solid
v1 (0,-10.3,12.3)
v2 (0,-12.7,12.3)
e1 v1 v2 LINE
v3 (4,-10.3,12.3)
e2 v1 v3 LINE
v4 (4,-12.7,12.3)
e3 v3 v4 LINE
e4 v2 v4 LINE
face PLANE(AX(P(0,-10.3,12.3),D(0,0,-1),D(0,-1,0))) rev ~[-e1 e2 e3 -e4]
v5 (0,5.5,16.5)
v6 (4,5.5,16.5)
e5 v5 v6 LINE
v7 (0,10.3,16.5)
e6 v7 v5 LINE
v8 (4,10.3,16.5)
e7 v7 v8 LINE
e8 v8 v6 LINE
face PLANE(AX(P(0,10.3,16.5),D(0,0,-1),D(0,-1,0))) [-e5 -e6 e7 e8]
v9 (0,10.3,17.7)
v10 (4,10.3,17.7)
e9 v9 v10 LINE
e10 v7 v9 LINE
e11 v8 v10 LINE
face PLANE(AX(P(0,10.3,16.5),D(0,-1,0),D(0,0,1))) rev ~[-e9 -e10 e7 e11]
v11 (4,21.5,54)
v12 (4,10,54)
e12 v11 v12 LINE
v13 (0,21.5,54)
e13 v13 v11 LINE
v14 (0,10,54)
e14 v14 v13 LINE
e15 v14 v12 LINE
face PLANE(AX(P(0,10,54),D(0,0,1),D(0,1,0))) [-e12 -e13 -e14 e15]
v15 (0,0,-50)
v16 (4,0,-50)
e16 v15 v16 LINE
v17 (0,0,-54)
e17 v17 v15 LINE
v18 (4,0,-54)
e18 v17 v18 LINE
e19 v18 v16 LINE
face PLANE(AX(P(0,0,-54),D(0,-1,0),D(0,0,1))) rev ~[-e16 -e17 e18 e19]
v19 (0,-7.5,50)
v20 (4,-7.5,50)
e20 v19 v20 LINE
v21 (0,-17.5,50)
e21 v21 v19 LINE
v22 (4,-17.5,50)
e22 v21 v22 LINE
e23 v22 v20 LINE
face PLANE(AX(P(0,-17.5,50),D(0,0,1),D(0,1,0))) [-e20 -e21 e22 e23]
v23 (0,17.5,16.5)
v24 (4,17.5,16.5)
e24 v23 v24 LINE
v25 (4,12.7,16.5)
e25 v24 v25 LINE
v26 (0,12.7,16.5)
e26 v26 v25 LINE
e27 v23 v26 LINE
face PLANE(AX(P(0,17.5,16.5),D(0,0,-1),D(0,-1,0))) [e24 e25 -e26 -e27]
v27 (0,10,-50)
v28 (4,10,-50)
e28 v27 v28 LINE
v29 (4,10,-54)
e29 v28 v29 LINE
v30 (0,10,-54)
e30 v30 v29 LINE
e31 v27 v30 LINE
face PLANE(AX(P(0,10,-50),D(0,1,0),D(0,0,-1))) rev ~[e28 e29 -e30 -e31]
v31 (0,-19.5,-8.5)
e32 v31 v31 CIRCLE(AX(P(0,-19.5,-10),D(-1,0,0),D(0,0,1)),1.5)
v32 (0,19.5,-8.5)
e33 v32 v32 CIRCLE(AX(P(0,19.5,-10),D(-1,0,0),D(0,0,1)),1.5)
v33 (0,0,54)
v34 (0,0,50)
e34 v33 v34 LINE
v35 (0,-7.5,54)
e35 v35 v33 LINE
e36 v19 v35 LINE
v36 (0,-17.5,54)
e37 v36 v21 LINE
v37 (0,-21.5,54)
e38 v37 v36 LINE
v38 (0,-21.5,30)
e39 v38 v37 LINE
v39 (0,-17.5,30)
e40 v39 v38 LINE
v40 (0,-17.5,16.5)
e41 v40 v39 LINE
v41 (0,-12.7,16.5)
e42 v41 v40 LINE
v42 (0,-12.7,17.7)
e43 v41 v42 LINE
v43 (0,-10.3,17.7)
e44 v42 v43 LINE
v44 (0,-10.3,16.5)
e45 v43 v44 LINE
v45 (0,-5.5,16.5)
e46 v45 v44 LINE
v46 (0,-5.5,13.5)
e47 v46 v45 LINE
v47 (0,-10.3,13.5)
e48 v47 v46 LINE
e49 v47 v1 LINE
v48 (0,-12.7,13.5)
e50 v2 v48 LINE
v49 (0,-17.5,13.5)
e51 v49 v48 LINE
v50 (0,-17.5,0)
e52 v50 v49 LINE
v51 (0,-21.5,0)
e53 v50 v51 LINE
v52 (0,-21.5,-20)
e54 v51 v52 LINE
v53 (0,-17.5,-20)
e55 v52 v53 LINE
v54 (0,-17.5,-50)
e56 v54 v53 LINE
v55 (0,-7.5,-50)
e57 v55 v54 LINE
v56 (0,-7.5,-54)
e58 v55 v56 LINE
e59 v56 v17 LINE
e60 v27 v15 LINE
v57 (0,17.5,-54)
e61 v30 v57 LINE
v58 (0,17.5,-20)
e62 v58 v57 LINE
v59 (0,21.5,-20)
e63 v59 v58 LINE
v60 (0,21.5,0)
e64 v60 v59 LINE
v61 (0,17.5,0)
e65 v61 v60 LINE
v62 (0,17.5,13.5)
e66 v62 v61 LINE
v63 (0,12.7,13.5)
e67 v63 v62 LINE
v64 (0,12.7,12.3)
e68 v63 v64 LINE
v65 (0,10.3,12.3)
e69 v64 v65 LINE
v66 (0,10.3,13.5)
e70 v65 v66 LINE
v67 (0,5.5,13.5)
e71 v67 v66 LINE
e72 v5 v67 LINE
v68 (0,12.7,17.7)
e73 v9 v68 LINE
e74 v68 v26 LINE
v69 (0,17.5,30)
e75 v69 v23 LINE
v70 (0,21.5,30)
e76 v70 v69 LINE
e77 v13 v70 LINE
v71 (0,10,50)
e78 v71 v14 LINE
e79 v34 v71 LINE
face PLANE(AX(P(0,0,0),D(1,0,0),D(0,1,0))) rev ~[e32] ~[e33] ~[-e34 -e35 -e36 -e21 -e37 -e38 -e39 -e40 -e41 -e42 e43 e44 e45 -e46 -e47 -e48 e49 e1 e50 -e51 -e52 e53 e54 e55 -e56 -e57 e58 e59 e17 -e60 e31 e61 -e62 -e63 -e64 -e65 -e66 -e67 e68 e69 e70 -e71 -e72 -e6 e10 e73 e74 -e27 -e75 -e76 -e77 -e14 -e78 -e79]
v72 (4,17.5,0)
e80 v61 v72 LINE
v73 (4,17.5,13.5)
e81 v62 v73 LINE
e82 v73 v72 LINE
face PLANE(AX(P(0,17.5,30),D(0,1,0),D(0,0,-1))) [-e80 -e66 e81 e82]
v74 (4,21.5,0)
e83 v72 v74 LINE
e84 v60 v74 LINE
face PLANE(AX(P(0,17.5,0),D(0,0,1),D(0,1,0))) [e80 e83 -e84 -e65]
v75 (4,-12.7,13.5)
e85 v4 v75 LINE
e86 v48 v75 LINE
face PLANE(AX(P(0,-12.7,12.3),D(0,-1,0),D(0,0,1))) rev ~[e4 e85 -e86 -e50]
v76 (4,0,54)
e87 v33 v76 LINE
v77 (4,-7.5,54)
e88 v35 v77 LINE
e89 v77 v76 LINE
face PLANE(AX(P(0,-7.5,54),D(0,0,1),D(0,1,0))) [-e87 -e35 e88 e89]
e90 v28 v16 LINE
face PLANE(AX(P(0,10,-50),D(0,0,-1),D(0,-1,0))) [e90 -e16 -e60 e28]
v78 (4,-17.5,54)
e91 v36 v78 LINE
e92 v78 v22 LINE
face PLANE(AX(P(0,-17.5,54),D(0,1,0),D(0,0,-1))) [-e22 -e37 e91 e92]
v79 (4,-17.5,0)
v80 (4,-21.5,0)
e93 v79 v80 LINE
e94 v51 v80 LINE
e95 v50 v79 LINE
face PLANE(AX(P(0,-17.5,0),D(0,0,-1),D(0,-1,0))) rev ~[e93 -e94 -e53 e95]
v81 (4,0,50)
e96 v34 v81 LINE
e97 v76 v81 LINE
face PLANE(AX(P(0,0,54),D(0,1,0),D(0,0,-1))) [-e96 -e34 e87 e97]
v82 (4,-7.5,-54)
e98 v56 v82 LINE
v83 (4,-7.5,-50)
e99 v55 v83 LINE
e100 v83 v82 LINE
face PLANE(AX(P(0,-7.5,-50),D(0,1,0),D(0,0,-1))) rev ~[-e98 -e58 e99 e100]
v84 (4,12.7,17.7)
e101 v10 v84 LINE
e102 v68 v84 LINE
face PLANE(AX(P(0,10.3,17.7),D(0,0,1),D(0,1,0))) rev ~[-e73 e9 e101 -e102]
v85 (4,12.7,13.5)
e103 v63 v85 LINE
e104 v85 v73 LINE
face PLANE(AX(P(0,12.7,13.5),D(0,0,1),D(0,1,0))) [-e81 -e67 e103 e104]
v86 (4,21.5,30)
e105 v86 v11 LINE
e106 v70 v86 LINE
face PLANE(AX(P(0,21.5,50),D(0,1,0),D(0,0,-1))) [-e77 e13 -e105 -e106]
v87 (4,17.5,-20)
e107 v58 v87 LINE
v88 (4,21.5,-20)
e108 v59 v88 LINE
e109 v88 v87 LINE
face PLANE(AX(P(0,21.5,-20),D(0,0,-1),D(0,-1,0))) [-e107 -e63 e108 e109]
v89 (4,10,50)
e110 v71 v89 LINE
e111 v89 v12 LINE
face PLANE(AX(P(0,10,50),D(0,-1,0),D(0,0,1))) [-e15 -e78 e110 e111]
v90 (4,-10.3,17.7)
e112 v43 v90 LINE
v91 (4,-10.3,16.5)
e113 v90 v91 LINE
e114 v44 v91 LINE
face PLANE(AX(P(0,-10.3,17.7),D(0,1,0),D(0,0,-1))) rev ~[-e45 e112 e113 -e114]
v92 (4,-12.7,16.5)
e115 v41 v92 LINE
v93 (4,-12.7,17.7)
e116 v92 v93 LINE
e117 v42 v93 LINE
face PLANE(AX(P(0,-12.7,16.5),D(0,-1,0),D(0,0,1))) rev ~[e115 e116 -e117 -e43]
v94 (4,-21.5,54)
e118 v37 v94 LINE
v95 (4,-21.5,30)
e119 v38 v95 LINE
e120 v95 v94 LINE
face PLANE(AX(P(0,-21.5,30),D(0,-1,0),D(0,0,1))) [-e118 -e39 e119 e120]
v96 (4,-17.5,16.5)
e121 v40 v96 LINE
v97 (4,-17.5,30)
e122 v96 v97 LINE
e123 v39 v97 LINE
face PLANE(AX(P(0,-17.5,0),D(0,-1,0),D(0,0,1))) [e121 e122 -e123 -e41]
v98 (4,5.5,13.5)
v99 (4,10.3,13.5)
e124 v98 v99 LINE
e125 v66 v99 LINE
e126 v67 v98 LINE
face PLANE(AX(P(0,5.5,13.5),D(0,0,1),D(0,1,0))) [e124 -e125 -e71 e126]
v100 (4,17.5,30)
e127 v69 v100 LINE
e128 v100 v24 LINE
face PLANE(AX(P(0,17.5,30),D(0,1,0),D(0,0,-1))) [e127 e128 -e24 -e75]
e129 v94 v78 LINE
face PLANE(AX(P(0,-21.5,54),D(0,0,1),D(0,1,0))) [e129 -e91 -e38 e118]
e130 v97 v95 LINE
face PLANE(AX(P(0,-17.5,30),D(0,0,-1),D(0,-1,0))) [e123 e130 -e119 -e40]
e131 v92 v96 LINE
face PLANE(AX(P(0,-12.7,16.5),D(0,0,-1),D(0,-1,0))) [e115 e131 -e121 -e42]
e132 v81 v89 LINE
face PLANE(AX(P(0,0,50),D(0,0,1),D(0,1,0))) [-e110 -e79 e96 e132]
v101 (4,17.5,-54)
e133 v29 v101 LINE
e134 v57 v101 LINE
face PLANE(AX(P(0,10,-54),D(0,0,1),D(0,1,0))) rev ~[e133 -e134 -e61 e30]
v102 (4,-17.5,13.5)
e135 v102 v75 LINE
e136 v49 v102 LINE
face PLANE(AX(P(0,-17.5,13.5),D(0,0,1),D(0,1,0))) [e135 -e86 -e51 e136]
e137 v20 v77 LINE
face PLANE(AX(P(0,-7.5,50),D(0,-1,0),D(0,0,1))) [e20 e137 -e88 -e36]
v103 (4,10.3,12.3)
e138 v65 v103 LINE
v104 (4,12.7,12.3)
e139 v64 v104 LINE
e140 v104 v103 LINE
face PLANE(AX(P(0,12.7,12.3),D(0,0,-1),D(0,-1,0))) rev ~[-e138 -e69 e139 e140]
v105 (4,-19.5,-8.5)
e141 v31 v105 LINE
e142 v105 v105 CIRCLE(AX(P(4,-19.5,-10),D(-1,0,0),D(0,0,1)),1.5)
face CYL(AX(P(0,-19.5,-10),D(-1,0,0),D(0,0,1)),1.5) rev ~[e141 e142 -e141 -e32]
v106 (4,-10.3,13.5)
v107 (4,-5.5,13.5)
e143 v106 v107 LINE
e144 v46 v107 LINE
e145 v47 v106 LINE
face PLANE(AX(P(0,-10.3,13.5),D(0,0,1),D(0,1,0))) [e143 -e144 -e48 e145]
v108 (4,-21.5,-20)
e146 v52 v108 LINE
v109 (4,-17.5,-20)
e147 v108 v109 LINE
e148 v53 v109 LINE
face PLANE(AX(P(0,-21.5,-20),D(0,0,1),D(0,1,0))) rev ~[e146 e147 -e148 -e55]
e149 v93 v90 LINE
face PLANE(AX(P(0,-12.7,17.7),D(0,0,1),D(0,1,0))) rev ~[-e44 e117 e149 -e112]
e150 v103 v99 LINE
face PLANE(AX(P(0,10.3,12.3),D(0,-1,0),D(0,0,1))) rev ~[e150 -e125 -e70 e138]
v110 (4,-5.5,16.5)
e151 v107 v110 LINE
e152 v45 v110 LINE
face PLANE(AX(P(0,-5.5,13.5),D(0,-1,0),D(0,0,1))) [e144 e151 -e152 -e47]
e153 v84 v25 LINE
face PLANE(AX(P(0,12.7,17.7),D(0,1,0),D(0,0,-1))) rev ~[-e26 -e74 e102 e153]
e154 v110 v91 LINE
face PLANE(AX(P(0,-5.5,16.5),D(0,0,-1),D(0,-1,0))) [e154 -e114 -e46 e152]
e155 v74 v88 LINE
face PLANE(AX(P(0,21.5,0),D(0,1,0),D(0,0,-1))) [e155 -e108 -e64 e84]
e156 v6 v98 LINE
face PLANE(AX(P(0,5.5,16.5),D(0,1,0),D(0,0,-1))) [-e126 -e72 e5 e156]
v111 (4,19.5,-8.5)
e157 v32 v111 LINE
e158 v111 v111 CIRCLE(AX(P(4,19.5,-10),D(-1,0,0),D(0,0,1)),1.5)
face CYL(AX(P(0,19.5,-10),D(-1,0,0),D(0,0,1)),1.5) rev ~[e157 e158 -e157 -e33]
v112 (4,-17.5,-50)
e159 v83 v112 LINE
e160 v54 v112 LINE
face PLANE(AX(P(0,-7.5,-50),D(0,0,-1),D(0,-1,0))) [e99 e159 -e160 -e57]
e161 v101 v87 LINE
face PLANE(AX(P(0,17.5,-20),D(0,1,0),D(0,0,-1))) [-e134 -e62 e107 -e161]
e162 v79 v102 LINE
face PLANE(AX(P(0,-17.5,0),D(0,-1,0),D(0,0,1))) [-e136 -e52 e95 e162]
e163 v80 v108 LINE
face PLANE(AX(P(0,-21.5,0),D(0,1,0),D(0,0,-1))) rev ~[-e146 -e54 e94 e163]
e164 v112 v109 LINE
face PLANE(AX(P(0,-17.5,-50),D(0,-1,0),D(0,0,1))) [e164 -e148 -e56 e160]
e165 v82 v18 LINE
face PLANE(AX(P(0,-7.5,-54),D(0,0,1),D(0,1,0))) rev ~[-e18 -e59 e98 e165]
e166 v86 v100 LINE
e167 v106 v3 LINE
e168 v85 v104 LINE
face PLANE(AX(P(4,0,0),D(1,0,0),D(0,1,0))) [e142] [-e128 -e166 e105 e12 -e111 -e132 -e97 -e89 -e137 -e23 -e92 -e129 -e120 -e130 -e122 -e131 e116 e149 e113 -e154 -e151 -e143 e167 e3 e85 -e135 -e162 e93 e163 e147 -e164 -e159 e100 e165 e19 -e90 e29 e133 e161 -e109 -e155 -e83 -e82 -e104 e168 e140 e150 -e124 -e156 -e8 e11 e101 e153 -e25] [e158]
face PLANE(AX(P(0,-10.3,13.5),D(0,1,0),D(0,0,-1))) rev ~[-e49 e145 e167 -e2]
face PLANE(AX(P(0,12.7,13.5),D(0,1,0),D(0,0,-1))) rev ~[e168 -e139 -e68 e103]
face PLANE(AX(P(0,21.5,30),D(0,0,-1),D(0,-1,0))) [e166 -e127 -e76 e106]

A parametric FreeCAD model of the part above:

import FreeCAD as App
import Part
import Sketcher

V = App.Vector


def add_polygon(sketch, points):
    """Adds a closed chain of lines whose ends are joined by coincident constraints."""
    first, n = sketch.GeometryCount, len(points)
    for a, b in zip(points, points[1:] + points[:1]):
        sketch.addGeometry(Part.LineSegment(App.Vector(*a, 0), App.Vector(*b, 0)), False)
    for i in range(n):
        sketch.addConstraint(Sketcher.Constraint("Coincident", first + i, 2, first + (i + 1) % n, 1))

doc = App.newDocument("Part")
body = doc.addObject("PartDesign::Body", "Body")

# Sketch on YZ plane
sketch1 = body.newObject("Sketcher::SketchObject", "Sketch")
sketch1.AttachmentSupport = (doc.getObject("YZ_Plane"), [""])
sketch1.MapMode = "FlatFace"
add_polygon(sketch1, [(-7.5, 50), (-17.5, 50), (-17.5, 54), (-21.5, 54), (-21.5, 30), (-17.5, 30), (-17.5, 0), (-21.5, 0), (-21.5, -20), (-17.5, -20), (-17.5, -50), (-7.5, -50), (-7.5, -54), (0, -54), (0, -50), (10, -50), (10, -54), (17.5, -54), (17.5, -20), (21.5, -20), (21.5, 0), (17.5, 0), (17.5, 30), (21.5, 30), (21.5, 54), (10, 54), (10, 50), (0, 50), (0, 54), (-7.5, 54)])  # lines 0-29
sketch1.addConstraint(Sketcher.Constraint("Horizontal", 0))
sketch1.addConstraint(Sketcher.Constraint("Vertical", 1))
sketch1.addConstraint(Sketcher.Constraint("Horizontal", 2))
sketch1.addConstraint(Sketcher.Constraint("Vertical", 3))
sketch1.addConstraint(Sketcher.Constraint("Horizontal", 4))
sketch1.addConstraint(Sketcher.Constraint("Vertical", 5))
sketch1.addConstraint(Sketcher.Constraint("Horizontal", 6))
sketch1.addConstraint(Sketcher.Constraint("Vertical", 7))
sketch1.addConstraint(Sketcher.Constraint("Horizontal", 8))
sketch1.addConstraint(Sketcher.Constraint("Vertical", 9))
sketch1.addConstraint(Sketcher.Constraint("Horizontal", 10))
sketch1.addConstraint(Sketcher.Constraint("Vertical", 11))
sketch1.addConstraint(Sketcher.Constraint("Horizontal", 12))
sketch1.addConstraint(Sketcher.Constraint("Vertical", 13))
sketch1.addConstraint(Sketcher.Constraint("Horizontal", 14))
sketch1.addConstraint(Sketcher.Constraint("Vertical", 15))
sketch1.addConstraint(Sketcher.Constraint("Horizontal", 16))
sketch1.addConstraint(Sketcher.Constraint("Vertical", 17))
sketch1.addConstraint(Sketcher.Constraint("Horizontal", 18))
sketch1.addConstraint(Sketcher.Constraint("Vertical", 19))
sketch1.addConstraint(Sketcher.Constraint("Horizontal", 20))
sketch1.addConstraint(Sketcher.Constraint("Vertical", 21))
sketch1.addConstraint(Sketcher.Constraint("Horizontal", 22))
sketch1.addConstraint(Sketcher.Constraint("Vertical", 23))
sketch1.addConstraint(Sketcher.Constraint("Horizontal", 24))
sketch1.addConstraint(Sketcher.Constraint("Vertical", 25))
sketch1.addConstraint(Sketcher.Constraint("Horizontal", 26))
sketch1.addConstraint(Sketcher.Constraint("Vertical", 27))
sketch1.addConstraint(Sketcher.Constraint("Horizontal", 28))
sketch1.addConstraint(Sketcher.Constraint("Vertical", 29))
sketch1.addConstraint(Sketcher.Constraint("Symmetric", 1, 2, 16, 2, -1, 1))
sketch1.addConstraint(Sketcher.Constraint("Symmetric", 6, 2, 19, 2, -1, 1))
sketch1.addConstraint(Sketcher.Constraint("Symmetric", 13, 2, 26, 2, -1, 1))
sketch1.addConstraint(Sketcher.Constraint("Symmetric", 8, 2, 17, 2, -2))
sketch1.addConstraint(Sketcher.Constraint("Symmetric", 5, 2, 20, 2, -2))
sketch1.addConstraint(Sketcher.Constraint("Symmetric", 3, 2, 22, 2, -2))
sketch1.addConstraint(Sketcher.Constraint("Symmetric", 15, 2, 24, 2, -1))
sketch1.addConstraint(Sketcher.Constraint("Symmetric", 12, 2, 27, 2, -1))
sketch1.addConstraint(Sketcher.Constraint("Symmetric", 10, 2, 29, 2, -1))
sketch1.addConstraint(Sketcher.Constraint("Horizontal", 10, 2, 13, 2))
sketch1.addConstraint(Sketcher.Constraint("Horizontal", 12, 2, 15, 2))
sketch1.addConstraint(Sketcher.Constraint("Vertical", 1, 2, 4, 2))
sketch1.addConstraint(Sketcher.Constraint("Vertical", 3, 2, 6, 2))
sketch1.addConstraint(Sketcher.Constraint("Equal", 10, 14))
sketch1.addConstraint(Sketcher.Constraint("Equal", 22, 1))
sketch1.addConstraint(Sketcher.Constraint("Equal", 5, 9))
sketch1.addConstraint(Sketcher.Constraint("DistanceX", 0, 2, 0, 1, 10.0))
sketch1.addConstraint(Sketcher.Constraint("DistanceX", 2, 2, 2, 1, 4.0))
sketch1.addConstraint(Sketcher.Constraint("DistanceY", 3, 2, 3, 1, 24.0))
sketch1.addConstraint(Sketcher.Constraint("DistanceY", 5, 2, 5, 1, 30.0))
sketch1.addConstraint(Sketcher.Constraint("DistanceX", 12, 1, 12, 2, 7.5))
pad1 = body.newObject("PartDesign::Pad", "Pad")
pad1.Profile = sketch1
pad1.Length = 4

# Sketch on YZ plane
sketch2 = body.newObject("Sketcher::SketchObject", "Sketch001")
sketch2.AttachmentSupport = (doc.getObject("YZ_Plane"), [""])
sketch2.MapMode = "FlatFace"
sketch2.addGeometry(Part.Circle(V(19.5, -10, 0), V(0, 0, 1), 1.5), False)  # 0
add_polygon(sketch2, [(17.5, 16.5), (17.5, 13.5), (12.7, 13.5), (12.7, 12.3), (10.3, 12.3), (10.3, 13.5), (5.5, 13.5), (5.5, 16.5), (10.3, 16.5), (10.3, 17.7), (12.7, 17.7), (12.7, 16.5)])  # lines 1-12
add_polygon(sketch2, [(-5.5, 16.5), (-5.5, 13.5), (-10.3, 13.5), (-10.3, 12.3), (-12.7, 12.3), (-12.7, 13.5), (-17.5, 13.5), (-17.5, 16.5), (-12.7, 16.5), (-12.7, 17.7), (-10.3, 17.7), (-10.3, 16.5)])  # lines 13-24
sketch2.addGeometry(Part.Circle(V(-19.5, -10, 0), V(0, 0, 1), 1.5), False)  # 25
sketch2.addConstraint(Sketcher.Constraint("Vertical", 1))
sketch2.addConstraint(Sketcher.Constraint("Horizontal", 2))
sketch2.addConstraint(Sketcher.Constraint("Vertical", 3))
sketch2.addConstraint(Sketcher.Constraint("Horizontal", 4))
sketch2.addConstraint(Sketcher.Constraint("Vertical", 5))
sketch2.addConstraint(Sketcher.Constraint("Horizontal", 6))
sketch2.addConstraint(Sketcher.Constraint("Vertical", 7))
sketch2.addConstraint(Sketcher.Constraint("Horizontal", 8))
sketch2.addConstraint(Sketcher.Constraint("Vertical", 9))
sketch2.addConstraint(Sketcher.Constraint("Horizontal", 10))
sketch2.addConstraint(Sketcher.Constraint("Vertical", 11))
sketch2.addConstraint(Sketcher.Constraint("Horizontal", 12))
sketch2.addConstraint(Sketcher.Constraint("Vertical", 13))
sketch2.addConstraint(Sketcher.Constraint("Horizontal", 14))
sketch2.addConstraint(Sketcher.Constraint("Vertical", 15))
sketch2.addConstraint(Sketcher.Constraint("Horizontal", 16))
sketch2.addConstraint(Sketcher.Constraint("Vertical", 17))
sketch2.addConstraint(Sketcher.Constraint("Horizontal", 18))
sketch2.addConstraint(Sketcher.Constraint("Vertical", 19))
sketch2.addConstraint(Sketcher.Constraint("Horizontal", 20))
sketch2.addConstraint(Sketcher.Constraint("Vertical", 21))
sketch2.addConstraint(Sketcher.Constraint("Horizontal", 22))
sketch2.addConstraint(Sketcher.Constraint("Vertical", 23))
sketch2.addConstraint(Sketcher.Constraint("Horizontal", 24))
sketch2.addConstraint(Sketcher.Constraint("Equal", 0, 25))
sketch2.addConstraint(Sketcher.Constraint("Symmetric", 0, 3, 25, 3, -2))
sketch2.addConstraint(Sketcher.Constraint("Symmetric", 6, 2, 13, 2, -2))
sketch2.addConstraint(Sketcher.Constraint("Symmetric", 4, 2, 15, 2, -2))
sketch2.addConstraint(Sketcher.Constraint("Symmetric", 2, 2, 17, 2, -2))
sketch2.addConstraint(Sketcher.Constraint("Symmetric", 12, 2, 19, 2, -2))
sketch2.addConstraint(Sketcher.Constraint("Symmetric", 10, 2, 21, 2, -2))
sketch2.addConstraint(Sketcher.Constraint("Symmetric", 8, 2, 23, 2, -2))
sketch2.addConstraint(Sketcher.Constraint("Horizontal", 2, 2, 5, 2))
sketch2.addConstraint(Sketcher.Constraint("Horizontal", 8, 2, 11, 2))
sketch2.addConstraint(Sketcher.Constraint("Vertical", 5, 2, 8, 2))
sketch2.addConstraint(Sketcher.Constraint("Vertical", 3, 2, 10, 2))
sketch2.addConstraint(Sketcher.Constraint("Equal", 2, 6))
sketch2.addConstraint(Sketcher.Constraint("Equal", 5, 9))
sketch2.addConstraint(Sketcher.Constraint("Diameter", 0, 3.0))
sketch2.addConstraint(Sketcher.Constraint("DistanceY", 1, 2, 1, 1, 3.0))
sketch2.addConstraint(Sketcher.Constraint("DistanceX", 4, 2, 4, 1, 2.4))
sketch2.addConstraint(Sketcher.Constraint("DistanceX", 6, 2, 1, 2, 12.0))
sketch2.addConstraint(Sketcher.Constraint("DistanceY", 4, 2, 9, 2, 5.4))
sketch2.addConstraint(Sketcher.Constraint("DistanceY", 0, 3, -1, 1, 10.0))
sketch2.addConstraint(Sketcher.Constraint("DistanceX", 25, 3, 0, 3, 39.0))
sketch2.addConstraint(Sketcher.Constraint("DistanceX", 1, 2, 0, 3, 2.0))
sketch2.addConstraint(Sketcher.Constraint("DistanceY", -1, 1, 1, 2, 13.5))
pocket1 = body.newObject("PartDesign::Pocket", "Pocket")
pocket1.Profile = sketch2
pocket1.Type = "UpToFirst"
pocket1.Reversed = True

doc.recompute()
